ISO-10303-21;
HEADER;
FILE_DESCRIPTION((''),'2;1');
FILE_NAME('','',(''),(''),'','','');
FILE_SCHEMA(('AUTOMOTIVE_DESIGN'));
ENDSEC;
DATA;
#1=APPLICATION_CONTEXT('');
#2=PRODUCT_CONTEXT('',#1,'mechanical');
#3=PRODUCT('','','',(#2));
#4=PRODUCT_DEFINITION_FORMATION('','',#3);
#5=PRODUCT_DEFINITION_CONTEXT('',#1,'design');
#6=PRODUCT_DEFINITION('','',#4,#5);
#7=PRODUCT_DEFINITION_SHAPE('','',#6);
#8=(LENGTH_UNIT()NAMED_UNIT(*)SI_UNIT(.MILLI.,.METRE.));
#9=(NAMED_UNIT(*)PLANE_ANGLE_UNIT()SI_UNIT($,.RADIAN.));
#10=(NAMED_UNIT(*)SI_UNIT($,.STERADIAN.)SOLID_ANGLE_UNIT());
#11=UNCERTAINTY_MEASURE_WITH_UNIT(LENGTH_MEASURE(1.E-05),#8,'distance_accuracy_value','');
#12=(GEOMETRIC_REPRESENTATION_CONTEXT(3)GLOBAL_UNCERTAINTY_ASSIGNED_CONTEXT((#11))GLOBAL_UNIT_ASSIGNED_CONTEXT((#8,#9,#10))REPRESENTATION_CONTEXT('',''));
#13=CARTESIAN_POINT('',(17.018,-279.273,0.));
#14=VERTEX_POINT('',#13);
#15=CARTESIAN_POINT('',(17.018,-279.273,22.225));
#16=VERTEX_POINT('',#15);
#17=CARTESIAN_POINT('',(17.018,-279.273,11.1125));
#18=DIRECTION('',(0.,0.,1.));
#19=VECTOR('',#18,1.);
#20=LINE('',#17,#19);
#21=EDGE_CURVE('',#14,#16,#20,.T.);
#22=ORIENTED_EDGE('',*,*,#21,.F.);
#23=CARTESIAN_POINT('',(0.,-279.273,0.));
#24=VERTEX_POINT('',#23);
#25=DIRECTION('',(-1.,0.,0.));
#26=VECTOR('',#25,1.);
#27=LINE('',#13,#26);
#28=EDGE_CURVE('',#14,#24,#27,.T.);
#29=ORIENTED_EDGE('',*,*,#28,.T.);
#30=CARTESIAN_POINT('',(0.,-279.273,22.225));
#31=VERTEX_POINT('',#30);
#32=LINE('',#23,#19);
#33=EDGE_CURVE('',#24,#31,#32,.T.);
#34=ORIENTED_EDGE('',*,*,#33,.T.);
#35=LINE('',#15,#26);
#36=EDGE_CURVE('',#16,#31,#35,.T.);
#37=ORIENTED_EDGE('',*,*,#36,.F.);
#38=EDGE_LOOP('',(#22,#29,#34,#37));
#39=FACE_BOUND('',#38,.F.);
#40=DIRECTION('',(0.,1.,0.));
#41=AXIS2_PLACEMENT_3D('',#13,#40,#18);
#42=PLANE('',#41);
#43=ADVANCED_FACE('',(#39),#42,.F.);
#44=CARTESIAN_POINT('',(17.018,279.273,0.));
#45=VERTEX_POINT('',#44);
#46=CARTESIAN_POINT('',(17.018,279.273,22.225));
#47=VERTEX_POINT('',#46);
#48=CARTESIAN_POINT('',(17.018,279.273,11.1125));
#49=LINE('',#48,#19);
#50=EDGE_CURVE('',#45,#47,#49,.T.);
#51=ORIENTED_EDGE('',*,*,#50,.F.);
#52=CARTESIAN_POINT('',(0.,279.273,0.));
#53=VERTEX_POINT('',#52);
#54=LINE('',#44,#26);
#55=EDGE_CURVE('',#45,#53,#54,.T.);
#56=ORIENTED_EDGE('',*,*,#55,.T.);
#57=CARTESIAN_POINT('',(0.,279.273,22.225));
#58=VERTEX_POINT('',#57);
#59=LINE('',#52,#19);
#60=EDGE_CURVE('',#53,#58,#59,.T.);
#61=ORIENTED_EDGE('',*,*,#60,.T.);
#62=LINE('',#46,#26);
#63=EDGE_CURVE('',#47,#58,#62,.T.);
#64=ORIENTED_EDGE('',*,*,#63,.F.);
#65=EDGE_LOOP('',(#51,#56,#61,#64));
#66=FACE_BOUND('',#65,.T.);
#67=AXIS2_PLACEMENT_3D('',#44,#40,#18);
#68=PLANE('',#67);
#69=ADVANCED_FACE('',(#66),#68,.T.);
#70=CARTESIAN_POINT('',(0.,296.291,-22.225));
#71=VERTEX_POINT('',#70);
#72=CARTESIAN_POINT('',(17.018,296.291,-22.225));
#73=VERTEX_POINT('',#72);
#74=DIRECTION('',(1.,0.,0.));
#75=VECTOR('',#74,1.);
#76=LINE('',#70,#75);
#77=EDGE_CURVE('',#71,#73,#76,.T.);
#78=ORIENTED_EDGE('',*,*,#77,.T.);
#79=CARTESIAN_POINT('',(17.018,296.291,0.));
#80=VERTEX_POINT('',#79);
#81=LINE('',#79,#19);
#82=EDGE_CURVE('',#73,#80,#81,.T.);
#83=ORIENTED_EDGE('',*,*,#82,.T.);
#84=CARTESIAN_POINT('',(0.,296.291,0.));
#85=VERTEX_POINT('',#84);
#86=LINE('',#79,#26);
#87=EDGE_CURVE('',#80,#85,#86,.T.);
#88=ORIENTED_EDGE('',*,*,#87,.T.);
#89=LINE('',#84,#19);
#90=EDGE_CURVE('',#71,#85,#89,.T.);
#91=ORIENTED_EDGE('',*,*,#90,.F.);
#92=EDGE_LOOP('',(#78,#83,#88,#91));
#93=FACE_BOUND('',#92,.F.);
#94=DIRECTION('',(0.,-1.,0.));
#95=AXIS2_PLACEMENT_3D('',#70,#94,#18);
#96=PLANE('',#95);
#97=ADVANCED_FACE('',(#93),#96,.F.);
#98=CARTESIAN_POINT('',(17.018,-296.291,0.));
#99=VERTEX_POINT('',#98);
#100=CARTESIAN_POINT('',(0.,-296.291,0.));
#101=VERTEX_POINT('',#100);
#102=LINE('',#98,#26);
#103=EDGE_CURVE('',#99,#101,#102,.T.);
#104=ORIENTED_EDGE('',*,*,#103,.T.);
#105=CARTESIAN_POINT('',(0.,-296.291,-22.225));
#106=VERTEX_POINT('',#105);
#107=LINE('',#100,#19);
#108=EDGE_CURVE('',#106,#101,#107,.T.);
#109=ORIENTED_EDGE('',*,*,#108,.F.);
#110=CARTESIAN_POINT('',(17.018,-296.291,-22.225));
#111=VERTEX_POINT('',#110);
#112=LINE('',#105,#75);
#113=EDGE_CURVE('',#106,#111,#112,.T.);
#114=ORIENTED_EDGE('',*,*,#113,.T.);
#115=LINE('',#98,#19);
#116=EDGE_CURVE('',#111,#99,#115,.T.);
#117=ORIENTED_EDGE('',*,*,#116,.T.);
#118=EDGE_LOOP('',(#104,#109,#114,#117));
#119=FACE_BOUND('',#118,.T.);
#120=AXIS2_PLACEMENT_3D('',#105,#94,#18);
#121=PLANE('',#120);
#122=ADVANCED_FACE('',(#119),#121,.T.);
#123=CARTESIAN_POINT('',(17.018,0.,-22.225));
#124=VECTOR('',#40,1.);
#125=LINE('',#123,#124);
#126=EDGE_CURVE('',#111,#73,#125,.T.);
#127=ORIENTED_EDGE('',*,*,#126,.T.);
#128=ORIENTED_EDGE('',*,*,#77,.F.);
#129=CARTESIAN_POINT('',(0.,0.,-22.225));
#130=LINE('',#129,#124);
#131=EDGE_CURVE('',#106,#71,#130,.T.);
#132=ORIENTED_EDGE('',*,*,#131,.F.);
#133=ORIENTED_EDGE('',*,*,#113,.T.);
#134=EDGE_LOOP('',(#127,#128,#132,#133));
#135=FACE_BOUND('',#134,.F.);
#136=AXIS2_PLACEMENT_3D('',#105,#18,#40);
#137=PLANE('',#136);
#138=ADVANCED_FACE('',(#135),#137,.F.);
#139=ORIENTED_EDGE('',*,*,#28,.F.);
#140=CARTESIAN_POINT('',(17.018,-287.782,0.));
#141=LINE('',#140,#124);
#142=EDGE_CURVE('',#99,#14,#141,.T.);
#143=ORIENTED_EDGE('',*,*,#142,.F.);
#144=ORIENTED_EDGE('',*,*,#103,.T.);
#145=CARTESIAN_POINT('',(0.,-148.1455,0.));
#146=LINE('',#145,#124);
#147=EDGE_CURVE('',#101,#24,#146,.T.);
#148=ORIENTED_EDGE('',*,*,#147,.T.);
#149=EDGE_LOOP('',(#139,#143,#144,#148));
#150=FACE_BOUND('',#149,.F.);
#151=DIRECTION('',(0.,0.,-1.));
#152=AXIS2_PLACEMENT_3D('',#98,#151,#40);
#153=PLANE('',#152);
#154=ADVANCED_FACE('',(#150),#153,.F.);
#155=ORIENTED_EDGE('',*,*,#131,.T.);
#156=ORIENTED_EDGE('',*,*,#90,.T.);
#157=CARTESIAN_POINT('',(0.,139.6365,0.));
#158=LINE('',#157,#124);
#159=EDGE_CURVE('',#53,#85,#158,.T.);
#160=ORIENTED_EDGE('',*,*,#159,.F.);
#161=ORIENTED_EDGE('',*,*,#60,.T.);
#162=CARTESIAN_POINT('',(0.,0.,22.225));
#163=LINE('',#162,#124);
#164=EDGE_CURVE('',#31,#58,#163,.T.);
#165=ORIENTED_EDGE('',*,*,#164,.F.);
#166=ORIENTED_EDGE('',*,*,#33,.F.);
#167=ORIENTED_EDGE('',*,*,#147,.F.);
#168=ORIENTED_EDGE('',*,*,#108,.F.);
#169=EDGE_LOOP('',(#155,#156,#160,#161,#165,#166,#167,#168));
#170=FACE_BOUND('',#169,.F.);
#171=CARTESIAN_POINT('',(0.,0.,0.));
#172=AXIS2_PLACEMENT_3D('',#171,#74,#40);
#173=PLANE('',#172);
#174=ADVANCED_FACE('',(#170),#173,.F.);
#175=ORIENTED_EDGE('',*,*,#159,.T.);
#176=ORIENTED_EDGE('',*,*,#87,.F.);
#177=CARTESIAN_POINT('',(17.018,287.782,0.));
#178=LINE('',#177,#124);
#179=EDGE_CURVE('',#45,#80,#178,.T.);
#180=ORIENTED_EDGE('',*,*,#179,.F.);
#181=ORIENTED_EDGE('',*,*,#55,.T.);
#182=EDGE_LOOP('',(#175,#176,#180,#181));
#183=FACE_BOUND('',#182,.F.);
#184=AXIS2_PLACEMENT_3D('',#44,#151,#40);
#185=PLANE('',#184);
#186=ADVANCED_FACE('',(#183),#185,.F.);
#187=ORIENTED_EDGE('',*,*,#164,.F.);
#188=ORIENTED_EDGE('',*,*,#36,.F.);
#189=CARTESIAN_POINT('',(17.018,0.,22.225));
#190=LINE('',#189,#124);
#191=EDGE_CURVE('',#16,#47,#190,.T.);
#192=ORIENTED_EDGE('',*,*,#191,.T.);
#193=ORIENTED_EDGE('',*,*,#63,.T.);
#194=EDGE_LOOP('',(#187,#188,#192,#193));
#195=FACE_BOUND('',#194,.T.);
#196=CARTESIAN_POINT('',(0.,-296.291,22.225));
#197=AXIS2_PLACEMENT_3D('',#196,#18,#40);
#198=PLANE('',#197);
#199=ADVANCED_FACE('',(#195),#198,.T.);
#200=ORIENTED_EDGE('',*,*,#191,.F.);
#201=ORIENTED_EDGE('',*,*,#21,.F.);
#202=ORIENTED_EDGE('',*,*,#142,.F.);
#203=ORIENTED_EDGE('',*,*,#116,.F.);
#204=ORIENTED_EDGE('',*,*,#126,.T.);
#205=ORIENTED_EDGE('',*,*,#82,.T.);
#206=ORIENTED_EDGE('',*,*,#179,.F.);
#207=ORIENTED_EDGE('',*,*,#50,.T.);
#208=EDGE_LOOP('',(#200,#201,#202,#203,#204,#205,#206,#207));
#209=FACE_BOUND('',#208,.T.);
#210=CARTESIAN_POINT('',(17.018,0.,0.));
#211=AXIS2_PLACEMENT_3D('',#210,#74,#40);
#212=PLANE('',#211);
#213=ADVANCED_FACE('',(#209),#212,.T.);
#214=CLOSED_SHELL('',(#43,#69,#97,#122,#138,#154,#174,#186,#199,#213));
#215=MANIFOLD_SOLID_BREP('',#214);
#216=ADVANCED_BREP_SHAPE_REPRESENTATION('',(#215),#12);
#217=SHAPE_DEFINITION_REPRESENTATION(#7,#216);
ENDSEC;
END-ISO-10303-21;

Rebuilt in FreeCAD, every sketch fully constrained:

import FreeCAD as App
import Part
import Sketcher
from FreeCAD import Vector
Q = App.Units.Quantity


def add_polygon(sketch, points):
    """Adds a closed chain of lines whose ends are joined by coincident constraints."""
    first, n = sketch.GeometryCount, len(points)
    for a, b in zip(points, points[1:] + points[:1]):
        sketch.addGeometry(Part.LineSegment(App.Vector(*a, 0), App.Vector(*b, 0)), False)
    for i in range(n):
        sketch.addConstraint(Sketcher.Constraint("Coincident", first + i, 2, first + (i + 1) % n, 1))

doc = App.newDocument("Part")
body = doc.addObject("PartDesign::Body", "Body")

# Sketch on YZ plane
sketch1 = body.newObject("Sketcher::SketchObject", "Sketch")
sketch1.AttachmentSupport = (doc.getObject("YZ_Plane"), [""])
sketch1.MapMode = "FlatFace"
add_polygon(sketch1, [(-296, 22), (-296, -22), (296, -22), (296, 22)])  # lines 0-3
sketch1.addConstraint(Sketcher.Constraint("Vertical", 0))
sketch1.addConstraint(Sketcher.Constraint("Horizontal", 1))
sketch1.addConstraint(Sketcher.Constraint("Vertical", 2))
sketch1.addConstraint(Sketcher.Constraint("Horizontal", 3))
sketch1.addConstraint(Sketcher.Constraint("Symmetric", 0, 2, 2, 2, -1, 1))
sketch1.addConstraint(Sketcher.Constraint("DistanceX", 1, 1, 1, 2, Q("23.33 in")))
sketch1.addConstraint(Sketcher.Constraint("DistanceY", 0, 2, 0, 1, Q("1.75 in")))
pad1 = body.newObject("PartDesign::Pad", "Pad")
pad1.Profile = sketch1
pad1.Length = Q("0.67 in")

# Sketch on YZ plane
sketch2 = body.newObject("Sketcher::SketchObject", "Sketch001")
sketch2.AttachmentSupport = (doc.getObject("YZ_Plane"), [""])
sketch2.MapMode = "FlatFace"
sketch2.AttachmentOffset = App.Placement(Vector(0, 0, 0.67 * 25.4), App.Rotation())
add_polygon(sketch2, [(-296, 22), (-296, 0), (-279, 0), (-279, 22)])  # lines 0-3
add_polygon(sketch2, [(279, 22), (279, 0), (296, 0), (296, 22)])  # lines 4-7
sketch2.addConstraint(Sketcher.Constraint("Vertical", 0))
sketch2.addConstraint(Sketcher.Constraint("Horizontal", 1))
sketch2.addConstraint(Sketcher.Constraint("Vertical", 2))
sketch2.addConstraint(Sketcher.Constraint("Horizontal", 3))
sketch2.addConstraint(Sketcher.Constraint("Vertical", 4))
sketch2.addConstraint(Sketcher.Constraint("Horizontal", 5))
sketch2.addConstraint(Sketcher.Constraint("Vertical", 6))
sketch2.addConstraint(Sketcher.Constraint("Horizontal", 7))
sketch2.addConstraint(Sketcher.Constraint("Symmetric", 1, 2, 4, 2, -1, 1))
sketch2.addConstraint(Sketcher.Constraint("Symmetric", 0, 2, 5, 2, -2))
sketch2.addConstraint(Sketcher.Constraint("Horizontal", 3, 2, 6, 2))
sketch2.addConstraint(Sketcher.Constraint("DistanceX", 1, 1, 1, 2, Q("0.67 in")))
sketch2.addConstraint(Sketcher.Constraint("DistanceY", 0, 2, 0, 1, Q("0.875 in")))
sketch2.addConstraint(Sketcher.Constraint("DistanceX", 1, 2, 4, 2, Q("21.99 in")))
pocket1 = body.newObject("PartDesign::Pocket", "Pocket")
pocket1.Profile = sketch2
pocket1.Type = "ThroughAll"

doc.recompute()
